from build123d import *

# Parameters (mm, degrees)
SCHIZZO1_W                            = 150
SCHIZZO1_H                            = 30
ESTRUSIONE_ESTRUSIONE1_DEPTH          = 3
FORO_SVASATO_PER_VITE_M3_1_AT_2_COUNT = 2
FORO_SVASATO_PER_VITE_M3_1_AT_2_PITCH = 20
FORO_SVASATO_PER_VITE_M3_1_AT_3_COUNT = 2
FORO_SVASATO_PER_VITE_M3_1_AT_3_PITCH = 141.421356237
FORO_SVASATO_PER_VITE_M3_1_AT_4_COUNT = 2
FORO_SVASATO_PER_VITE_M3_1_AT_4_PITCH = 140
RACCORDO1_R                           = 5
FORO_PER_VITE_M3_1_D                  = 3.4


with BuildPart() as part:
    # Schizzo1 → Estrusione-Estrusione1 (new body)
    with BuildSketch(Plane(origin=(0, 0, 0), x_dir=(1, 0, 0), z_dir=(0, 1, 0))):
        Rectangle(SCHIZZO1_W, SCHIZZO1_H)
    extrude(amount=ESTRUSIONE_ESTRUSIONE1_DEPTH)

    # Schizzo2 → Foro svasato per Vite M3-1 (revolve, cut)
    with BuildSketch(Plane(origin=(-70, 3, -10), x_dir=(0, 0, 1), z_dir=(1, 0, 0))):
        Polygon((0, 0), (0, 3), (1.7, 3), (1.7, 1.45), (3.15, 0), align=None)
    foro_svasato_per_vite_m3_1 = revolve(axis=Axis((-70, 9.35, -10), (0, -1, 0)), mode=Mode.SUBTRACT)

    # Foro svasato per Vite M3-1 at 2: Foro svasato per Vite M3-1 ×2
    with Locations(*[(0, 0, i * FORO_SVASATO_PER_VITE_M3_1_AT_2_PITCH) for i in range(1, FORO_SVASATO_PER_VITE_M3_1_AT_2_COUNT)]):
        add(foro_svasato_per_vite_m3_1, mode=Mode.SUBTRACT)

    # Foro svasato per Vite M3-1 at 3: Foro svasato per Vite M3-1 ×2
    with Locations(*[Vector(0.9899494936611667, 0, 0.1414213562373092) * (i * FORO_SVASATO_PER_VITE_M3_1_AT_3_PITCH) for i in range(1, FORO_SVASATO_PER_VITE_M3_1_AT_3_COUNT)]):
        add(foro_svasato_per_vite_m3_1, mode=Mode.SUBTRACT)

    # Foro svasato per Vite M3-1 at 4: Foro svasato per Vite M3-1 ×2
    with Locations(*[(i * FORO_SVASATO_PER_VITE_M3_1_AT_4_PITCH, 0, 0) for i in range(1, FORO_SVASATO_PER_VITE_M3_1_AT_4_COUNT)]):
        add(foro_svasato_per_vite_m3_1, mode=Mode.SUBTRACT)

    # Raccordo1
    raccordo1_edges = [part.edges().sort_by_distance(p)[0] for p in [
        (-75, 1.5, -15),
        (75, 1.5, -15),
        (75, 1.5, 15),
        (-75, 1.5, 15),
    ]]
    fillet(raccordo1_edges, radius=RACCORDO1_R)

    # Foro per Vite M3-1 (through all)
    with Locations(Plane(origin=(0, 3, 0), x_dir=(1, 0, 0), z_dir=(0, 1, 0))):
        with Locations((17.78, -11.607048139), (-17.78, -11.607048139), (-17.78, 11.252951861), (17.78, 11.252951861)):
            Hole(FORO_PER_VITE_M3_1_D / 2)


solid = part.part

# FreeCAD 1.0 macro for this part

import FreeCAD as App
import Part
import Sketcher
from FreeCAD import Vector
Q = App.Units.Quantity


def edges_at(feature, points):
    """Names of the edges that pass closest to the given points."""
    edges = feature.Shape.Edges
    near = lambda p: min(range(len(edges)), key=lambda i: edges[i].distToShape(Part.Vertex(*p))[0])
    return sorted({f"Edge{near(p) + 1}" for p in points})


def add_polygon(sketch, points):
    """Adds a closed chain of lines whose ends are joined by coincident constraints."""
    first, n = sketch.GeometryCount, len(points)
    for a, b in zip(points, points[1:] + points[:1]):
        sketch.addGeometry(Part.LineSegment(App.Vector(*a, 0), App.Vector(*b, 0)), False)
    for i in range(n):
        sketch.addConstraint(Sketcher.Constraint("Coincident", first + i, 2, first + (i + 1) % n, 1))

doc = App.newDocument("Part")
body = doc.addObject("PartDesign::Body", "Body")

sketch1 = body.newObject("Sketcher::SketchObject", "Sketch")
sketch1.AttachmentSupport = (doc.getObject("XZ_Plane"), [""])
sketch1.MapMode = "FlatFace"
add_polygon(sketch1, [(-75, -15), (-75, 15), (75, 15), (75, -15)])
sketch1.addConstraint([
    Sketcher.Constraint("Vertical", 0),
    Sketcher.Constraint("Horizontal", 1),
    Sketcher.Constraint("Vertical", 2),
    Sketcher.Constraint("Horizontal", 3),
    Sketcher.Constraint("Symmetric", 0, 2, 2, 2, -1, 1),
    Sketcher.Constraint("DistanceX", 1, 1, 1, 2, 150.0),
    Sketcher.Constraint("DistanceY", 0, 1, 0, 2, 30.0),
])
pad1 = body.newObject("PartDesign::Pad", "Pad")
pad1.Profile = sketch1
pad1.Length = 3
pad1.Reversed = True

sketch2 = body.newObject("Sketcher::SketchObject", "Sketch001")
sketch2.AttachmentSupport = (doc.getObject("YZ_Plane"), [""])
sketch2.MapMode = "FlatFace"
sketch2.AttachmentOffset = App.Placement(Vector(0, 0, -70), App.Rotation())
add_polygon(sketch2, [(0, -10), (3, -10), (3, -6.8), (1.6, -8.3), (0, -8.3)])
sketch2.addGeometry(Part.LineSegment(Vector(3, -10, 0), Vector(0, -10, 0)), True)
sketch2.addConstraint([
    Sketcher.Constraint("Horizontal", 0),
    Sketcher.Constraint("Vertical", 1),
    Sketcher.Constraint("Horizontal", 3),
    Sketcher.Constraint("Vertical", 4),
    Sketcher.Constraint("Horizontal", 5),
    Sketcher.Constraint("Coincident", 5, 1, 0, 2),
    Sketcher.Constraint("PointOnObject", 3, 2, -2),
    Sketcher.Constraint("PointOnObject", 5, 2, -2),
    Sketcher.Constraint("DistanceX", 0, 1, 0, 2, 3.0),
    Sketcher.Constraint("Angle", 2, Q("-135 deg")),
    Sketcher.Constraint("DistanceY", 4, 2, 4, 1, 1.7),
    Sketcher.Constraint("DistanceY", 0, 2, -1, 1, 10.0),
    Sketcher.Constraint("DistanceX", 3, 2, 3, 1, 1.55),
])
groove = body.newObject("PartDesign::Groove", "Groove")
groove.Profile = sketch2
groove.ReferenceAxis = (sketch2, ["Axis0"])
groove.Angle = 360
doc.recompute()

linearpattern = body.newObject("PartDesign::LinearPattern", "LinearPattern")
linearpattern.Originals = [groove]
linearpattern.Direction = (doc.getObject("Z_Axis"), [""])
linearpattern.Mode = "offset"
linearpattern.Offset = 20
linearpattern.Occurrences = 2
body.Tip = linearpattern
doc.recompute()

datumline = body.newObject("PartDesign::Line", "DatumLine")
datumline.Placement = App.Placement(Vector(0, 0, 0), App.Rotation(Vector(0, 0, 1), Vector(0.989949494, 0, 0.141421356)))
linearpattern2 = body.newObject("PartDesign::LinearPattern", "LinearPattern001")
linearpattern2.Originals = [groove]
linearpattern2.Direction = (datumline, [""])
linearpattern2.Mode = "offset"
linearpattern2.Offset = 141.421356
linearpattern2.Occurrences = 2
body.Tip = linearpattern2
doc.recompute()

linearpattern3 = body.newObject("PartDesign::LinearPattern", "LinearPattern002")
linearpattern3.Originals = [groove]
linearpattern3.Direction = (doc.getObject("X_Axis"), [""])
linearpattern3.Mode = "offset"
linearpattern3.Offset = 140
linearpattern3.Occurrences = 2
body.Tip = linearpattern3
doc.recompute()

fillet = body.newObject("PartDesign::Fillet", "Fillet")
fillet.Base = (linearpattern3, edges_at(linearpattern3, [
    (-75, 1.5, -15),
    (75, 1.5, -15),
    (75, 1.5, 15),
    (-75, 1.5, 15),
]))
fillet.Radius = 5

sketch3 = body.newObject("Sketcher::SketchObject", "Sketch002")
sketch3.AttachmentSupport = (doc.getObject("XZ_Plane"), [""])
sketch3.MapMode = "FlatFace"
sketch3.AttachmentOffset = App.Placement(Vector(0, 0, -3), App.Rotation())
sketch3.addGeometry([
    Part.Circle(Vector(17.8, 11.6, 0), Vector(0, 0, 1), 1.7),
    Part.Circle(Vector(-17.8, 11.6, 0), Vector(0, 0, 1), 1.7),
    Part.Circle(Vector(-17.8, -11.3, 0), Vector(0, 0, 1), 1.7),
    Part.Circle(Vector(17.8, -11.3, 0), Vector(0, 0, 1), 1.7),
], False)
sketch3.addConstraint([
    Sketcher.Constraint("Equal", 0, 1),
    Sketcher.Constraint("Equal", 1, 2),
    Sketcher.Constraint("Equal", 2, 3),
    Sketcher.Constraint("Symmetric", 0, 3, 1, 3, -2),
    Sketcher.Constraint("Symmetric", 2, 3, 3, 3, -2),
    Sketcher.Constraint("Vertical", 1, 3, 2, 3),
    Sketcher.Constraint("Diameter", 0, 3.4),
    Sketcher.Constraint("DistanceX", -1, 1, 0, 3, 17.78),
    Sketcher.Constraint("DistanceY", 2, 3, 1, 3, 22.86),
    Sketcher.Constraint("DistanceY", -1, 1, 0, 3, 11.607048),
])
doc.recompute()
hole = body.newObject("PartDesign::Hole", "Hole")
hole.Profile = sketch3
hole.ThreadType = "None"
hole.Diameter = 3.4
hole.DepthType = "ThroughAll"
hole.Reversed = True

doc.recompute()
